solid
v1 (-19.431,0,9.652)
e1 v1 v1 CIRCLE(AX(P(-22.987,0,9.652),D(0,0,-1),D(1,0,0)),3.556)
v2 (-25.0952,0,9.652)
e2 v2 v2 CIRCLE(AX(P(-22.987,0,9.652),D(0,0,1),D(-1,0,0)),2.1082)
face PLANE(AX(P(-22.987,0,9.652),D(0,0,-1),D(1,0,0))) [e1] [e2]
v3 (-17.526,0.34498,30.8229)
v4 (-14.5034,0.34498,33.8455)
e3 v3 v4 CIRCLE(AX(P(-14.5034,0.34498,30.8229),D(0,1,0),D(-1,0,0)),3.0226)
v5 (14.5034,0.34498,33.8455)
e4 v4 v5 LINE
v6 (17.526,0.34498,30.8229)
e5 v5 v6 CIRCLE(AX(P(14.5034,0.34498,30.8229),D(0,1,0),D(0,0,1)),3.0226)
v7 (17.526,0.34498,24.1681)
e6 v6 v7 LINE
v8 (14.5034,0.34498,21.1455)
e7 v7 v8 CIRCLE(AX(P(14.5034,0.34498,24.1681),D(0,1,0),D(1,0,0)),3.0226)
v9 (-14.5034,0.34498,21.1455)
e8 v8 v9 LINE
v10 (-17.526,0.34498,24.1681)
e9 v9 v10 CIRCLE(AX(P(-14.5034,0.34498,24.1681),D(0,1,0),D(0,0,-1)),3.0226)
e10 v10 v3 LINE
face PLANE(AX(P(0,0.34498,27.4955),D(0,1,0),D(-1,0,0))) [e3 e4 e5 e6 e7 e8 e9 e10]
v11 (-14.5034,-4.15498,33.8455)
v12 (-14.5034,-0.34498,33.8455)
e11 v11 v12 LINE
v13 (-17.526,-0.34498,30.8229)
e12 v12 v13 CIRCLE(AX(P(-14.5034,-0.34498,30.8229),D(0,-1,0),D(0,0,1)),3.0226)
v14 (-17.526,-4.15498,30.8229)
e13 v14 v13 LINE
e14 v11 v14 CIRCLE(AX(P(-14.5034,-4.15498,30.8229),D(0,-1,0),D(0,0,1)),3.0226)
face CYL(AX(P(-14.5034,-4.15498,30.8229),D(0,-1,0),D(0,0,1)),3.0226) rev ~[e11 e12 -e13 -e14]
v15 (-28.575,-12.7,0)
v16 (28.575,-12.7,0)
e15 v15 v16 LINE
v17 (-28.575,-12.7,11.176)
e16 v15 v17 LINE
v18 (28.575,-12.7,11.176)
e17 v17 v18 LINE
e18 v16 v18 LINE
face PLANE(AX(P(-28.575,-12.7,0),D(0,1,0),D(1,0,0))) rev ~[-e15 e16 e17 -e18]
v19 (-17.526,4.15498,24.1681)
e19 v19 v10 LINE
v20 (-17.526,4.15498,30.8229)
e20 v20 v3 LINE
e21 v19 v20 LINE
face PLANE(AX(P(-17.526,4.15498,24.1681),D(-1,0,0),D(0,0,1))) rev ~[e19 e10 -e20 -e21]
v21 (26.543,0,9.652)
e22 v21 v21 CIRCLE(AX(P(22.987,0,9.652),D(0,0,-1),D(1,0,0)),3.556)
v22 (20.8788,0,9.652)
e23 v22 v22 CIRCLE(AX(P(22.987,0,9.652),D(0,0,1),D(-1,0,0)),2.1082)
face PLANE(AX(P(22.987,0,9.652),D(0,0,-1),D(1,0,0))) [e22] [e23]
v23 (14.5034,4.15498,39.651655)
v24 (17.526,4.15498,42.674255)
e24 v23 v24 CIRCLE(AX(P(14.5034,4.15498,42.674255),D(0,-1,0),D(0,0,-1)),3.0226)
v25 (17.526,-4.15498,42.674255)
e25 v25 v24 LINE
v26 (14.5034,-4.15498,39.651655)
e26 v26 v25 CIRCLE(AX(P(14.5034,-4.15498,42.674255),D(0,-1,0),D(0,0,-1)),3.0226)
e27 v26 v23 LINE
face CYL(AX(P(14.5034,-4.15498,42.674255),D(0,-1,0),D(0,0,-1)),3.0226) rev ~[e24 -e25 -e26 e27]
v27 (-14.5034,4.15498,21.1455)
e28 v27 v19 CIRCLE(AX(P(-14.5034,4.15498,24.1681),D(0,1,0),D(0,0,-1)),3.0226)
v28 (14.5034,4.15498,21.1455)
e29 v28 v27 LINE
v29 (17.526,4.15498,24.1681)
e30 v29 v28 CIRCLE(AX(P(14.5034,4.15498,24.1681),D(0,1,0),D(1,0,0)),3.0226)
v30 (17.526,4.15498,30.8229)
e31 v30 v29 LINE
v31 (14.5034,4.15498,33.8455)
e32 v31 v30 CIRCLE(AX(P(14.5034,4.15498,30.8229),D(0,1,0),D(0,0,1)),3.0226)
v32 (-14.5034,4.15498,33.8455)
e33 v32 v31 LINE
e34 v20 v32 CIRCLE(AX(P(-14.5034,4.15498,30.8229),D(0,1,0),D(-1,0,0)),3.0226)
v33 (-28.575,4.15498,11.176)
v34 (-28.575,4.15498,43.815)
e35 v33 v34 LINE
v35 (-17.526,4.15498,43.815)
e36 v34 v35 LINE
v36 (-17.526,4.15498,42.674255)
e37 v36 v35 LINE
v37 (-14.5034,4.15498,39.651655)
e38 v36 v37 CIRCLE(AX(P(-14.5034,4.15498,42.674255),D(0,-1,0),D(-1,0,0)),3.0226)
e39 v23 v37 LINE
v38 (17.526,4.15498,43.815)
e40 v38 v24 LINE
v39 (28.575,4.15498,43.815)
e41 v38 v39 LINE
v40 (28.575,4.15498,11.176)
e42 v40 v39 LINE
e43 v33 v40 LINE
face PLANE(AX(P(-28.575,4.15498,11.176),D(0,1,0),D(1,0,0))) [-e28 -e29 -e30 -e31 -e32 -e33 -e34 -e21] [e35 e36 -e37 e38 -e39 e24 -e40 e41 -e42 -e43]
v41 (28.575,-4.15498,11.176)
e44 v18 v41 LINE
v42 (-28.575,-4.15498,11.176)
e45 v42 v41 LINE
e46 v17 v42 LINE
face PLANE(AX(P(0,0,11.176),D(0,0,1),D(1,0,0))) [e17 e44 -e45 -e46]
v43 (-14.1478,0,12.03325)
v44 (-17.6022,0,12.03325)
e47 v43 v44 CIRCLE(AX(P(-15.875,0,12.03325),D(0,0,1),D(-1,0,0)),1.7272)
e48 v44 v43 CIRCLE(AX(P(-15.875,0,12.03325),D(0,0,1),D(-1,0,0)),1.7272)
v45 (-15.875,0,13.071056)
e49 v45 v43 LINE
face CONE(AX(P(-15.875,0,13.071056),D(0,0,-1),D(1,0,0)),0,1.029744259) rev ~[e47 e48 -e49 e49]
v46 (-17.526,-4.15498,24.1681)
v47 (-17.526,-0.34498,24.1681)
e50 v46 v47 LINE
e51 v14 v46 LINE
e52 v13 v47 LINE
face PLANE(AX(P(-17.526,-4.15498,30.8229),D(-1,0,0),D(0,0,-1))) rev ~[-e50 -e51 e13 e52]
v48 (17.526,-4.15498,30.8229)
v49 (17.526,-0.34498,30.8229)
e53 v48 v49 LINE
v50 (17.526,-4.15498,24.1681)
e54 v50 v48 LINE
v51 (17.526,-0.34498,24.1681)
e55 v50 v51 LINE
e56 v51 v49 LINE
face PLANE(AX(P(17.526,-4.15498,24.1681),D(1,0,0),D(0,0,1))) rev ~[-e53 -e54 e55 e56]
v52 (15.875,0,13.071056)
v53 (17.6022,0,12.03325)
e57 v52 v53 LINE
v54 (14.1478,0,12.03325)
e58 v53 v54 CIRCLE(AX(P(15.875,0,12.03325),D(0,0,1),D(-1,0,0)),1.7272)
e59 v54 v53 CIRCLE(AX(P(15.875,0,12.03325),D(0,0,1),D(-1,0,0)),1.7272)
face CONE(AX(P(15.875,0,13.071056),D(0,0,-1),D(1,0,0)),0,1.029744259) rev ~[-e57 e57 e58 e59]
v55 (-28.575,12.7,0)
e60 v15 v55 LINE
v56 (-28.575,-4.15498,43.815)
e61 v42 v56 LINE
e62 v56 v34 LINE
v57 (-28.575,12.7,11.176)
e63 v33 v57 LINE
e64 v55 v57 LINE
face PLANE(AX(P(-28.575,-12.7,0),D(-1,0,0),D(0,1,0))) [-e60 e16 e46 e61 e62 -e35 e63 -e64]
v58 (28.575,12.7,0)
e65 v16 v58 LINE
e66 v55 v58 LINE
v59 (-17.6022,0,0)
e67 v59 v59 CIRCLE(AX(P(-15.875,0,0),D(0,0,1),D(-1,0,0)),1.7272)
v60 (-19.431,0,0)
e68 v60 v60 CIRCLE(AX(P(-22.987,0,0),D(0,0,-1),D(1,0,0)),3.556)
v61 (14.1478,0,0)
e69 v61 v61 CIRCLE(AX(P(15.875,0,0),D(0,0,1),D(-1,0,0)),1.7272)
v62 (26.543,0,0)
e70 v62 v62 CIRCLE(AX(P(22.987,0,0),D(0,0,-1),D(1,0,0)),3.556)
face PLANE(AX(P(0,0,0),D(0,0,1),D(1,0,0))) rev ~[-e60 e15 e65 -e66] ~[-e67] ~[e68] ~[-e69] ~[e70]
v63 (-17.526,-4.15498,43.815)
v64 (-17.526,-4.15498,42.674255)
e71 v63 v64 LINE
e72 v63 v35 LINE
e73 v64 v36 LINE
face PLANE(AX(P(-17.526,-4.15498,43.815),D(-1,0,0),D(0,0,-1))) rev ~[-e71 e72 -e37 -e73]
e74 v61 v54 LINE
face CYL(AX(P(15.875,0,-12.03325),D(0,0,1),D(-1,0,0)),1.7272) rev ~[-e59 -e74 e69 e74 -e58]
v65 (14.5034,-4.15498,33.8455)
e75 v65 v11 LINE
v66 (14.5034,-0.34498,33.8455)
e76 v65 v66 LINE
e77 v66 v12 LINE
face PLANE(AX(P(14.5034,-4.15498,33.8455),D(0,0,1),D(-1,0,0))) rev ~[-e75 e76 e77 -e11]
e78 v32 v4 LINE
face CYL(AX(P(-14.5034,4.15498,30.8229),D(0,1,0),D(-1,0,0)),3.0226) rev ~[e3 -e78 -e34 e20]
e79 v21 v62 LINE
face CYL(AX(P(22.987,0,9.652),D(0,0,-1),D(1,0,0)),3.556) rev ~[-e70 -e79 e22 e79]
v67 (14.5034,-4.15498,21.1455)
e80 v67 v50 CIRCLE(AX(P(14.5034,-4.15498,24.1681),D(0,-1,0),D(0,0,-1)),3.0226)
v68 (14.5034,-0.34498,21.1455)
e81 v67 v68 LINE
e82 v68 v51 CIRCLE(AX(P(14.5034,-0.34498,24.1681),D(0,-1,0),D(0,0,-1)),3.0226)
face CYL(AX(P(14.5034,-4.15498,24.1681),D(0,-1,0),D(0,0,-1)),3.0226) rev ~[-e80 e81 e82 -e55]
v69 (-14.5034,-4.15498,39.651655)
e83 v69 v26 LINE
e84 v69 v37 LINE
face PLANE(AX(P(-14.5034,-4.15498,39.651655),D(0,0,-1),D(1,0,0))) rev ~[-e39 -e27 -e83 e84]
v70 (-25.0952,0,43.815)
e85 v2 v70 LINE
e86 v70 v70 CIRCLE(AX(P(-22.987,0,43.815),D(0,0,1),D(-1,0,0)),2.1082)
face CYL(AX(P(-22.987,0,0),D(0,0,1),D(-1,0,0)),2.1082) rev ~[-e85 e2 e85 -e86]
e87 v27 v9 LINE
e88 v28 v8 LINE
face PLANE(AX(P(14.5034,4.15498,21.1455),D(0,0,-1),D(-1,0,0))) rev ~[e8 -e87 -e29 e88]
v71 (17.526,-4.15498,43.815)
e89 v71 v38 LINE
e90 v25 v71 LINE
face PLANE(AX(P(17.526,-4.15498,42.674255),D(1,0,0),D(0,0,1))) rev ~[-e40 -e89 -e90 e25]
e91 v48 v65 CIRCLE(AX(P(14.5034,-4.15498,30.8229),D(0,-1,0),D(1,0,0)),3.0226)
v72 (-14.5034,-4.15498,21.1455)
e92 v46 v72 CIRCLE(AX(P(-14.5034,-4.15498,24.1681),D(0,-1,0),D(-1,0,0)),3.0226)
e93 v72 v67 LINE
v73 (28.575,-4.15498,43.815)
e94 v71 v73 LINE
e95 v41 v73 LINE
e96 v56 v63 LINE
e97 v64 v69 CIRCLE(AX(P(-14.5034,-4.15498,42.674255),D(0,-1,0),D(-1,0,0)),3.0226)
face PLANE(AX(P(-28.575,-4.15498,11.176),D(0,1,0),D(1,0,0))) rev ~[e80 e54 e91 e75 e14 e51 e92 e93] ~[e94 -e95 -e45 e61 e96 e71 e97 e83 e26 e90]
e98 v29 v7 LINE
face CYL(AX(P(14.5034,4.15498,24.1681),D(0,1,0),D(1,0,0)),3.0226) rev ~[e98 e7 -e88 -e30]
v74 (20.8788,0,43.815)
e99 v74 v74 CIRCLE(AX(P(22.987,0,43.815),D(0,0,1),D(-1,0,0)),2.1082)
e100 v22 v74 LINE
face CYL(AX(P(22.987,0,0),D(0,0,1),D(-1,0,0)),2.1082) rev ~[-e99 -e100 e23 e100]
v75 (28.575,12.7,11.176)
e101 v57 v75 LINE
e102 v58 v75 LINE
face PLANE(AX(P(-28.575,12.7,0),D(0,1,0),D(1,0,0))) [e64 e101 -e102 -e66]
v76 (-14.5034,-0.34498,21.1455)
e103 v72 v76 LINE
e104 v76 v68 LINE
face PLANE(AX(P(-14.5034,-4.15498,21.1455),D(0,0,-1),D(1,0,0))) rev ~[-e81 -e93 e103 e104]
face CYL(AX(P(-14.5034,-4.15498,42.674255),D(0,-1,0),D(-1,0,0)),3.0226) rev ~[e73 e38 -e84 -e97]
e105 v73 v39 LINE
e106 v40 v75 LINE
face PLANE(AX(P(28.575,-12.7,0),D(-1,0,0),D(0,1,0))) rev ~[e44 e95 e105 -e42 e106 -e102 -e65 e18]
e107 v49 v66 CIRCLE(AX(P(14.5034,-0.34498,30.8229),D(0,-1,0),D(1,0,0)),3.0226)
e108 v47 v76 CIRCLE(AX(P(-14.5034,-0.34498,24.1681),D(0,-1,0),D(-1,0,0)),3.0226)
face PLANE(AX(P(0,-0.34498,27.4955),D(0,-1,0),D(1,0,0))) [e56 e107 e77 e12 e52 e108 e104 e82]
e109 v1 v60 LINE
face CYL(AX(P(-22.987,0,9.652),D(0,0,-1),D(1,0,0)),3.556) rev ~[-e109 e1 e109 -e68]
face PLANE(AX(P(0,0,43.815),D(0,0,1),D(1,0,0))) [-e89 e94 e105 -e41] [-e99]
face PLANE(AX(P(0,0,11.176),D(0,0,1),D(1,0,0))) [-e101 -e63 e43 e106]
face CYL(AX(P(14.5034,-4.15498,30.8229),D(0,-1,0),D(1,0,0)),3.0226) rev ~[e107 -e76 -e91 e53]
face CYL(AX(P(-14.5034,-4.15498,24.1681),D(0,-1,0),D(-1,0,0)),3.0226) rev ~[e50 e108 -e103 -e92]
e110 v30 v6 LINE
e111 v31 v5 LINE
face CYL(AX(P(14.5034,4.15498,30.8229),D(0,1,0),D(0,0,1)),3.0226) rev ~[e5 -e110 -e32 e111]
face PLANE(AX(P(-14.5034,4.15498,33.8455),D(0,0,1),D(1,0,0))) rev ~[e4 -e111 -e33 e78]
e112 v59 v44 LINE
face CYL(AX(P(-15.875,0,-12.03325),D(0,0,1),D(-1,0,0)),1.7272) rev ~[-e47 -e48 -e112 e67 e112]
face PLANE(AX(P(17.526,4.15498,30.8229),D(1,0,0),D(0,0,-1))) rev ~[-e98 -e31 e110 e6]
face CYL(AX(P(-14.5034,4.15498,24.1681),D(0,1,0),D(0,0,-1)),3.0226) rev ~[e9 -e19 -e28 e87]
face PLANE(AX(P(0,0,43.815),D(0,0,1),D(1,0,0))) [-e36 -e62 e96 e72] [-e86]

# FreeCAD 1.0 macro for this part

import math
import FreeCAD as App
import Part
import Sketcher

V = App.Vector
Q = App.Units.Quantity

doc = App.newDocument("Part")
body = doc.addObject("PartDesign::Body", "Body")

sketch1 = body.newObject("Sketcher::SketchObject", "Sketch")
sketch1.AttachmentSupport = (doc.getObject("XY_Plane"), [""])
sketch1.MapMode = "FlatFace"
sketch1.addGeometry([
    Part.LineSegment(V(-29, 13, 0), V(-29, -13, 0)),
    Part.LineSegment(V(-29, -13, 0), V(29, -13, 0)),
    Part.LineSegment(V(29, -13, 0), V(29, 13, 0)),
    Part.LineSegment(V(29, 13, 0), V(-29, 13, 0)),
], False)
sketch1.addConstraint([
    Sketcher.Constraint("Coincident", 0, 2, 1, 1),
    Sketcher.Constraint("Coincident", 1, 2, 2, 1),
    Sketcher.Constraint("Coincident", 2, 2, 3, 1),
    Sketcher.Constraint("Coincident", 3, 2, 0, 1),
    Sketcher.Constraint("Vertical", 0),
    Sketcher.Constraint("Horizontal", 1),
    Sketcher.Constraint("Vertical", 2),
    Sketcher.Constraint("Horizontal", 3),
    Sketcher.Constraint("Symmetric", 0, 2, 2, 2, -1, 1),
    Sketcher.Constraint("DistanceY", 0, 2, 0, 1, Q("1 in")),
    Sketcher.Constraint("DistanceX", 1, 1, 1, 2, Q("2.25 in")),
])
pad1 = body.newObject("PartDesign::Pad", "Pad")
pad1.Profile = sketch1
pad1.Length = Q("0.44 in")

sketch2 = body.newObject("Sketcher::SketchObject", "Sketch001")
sketch2.AttachmentSupport = (doc.getObject("XY_Plane"), [""])
sketch2.MapMode = "FlatFace"
sketch2.AttachmentOffset = App.Placement(V(0, 0, 0.44 * 25.4), App.Rotation())
sketch2.addGeometry([
    Part.LineSegment(V(-29, 4, 0), V(-29, -4, 0)),
    Part.LineSegment(V(-29, -4, 0), V(29, -4, 0)),
    Part.LineSegment(V(29, -4, 0), V(29, 4, 0)),
    Part.LineSegment(V(29, 4, 0), V(-29, 4, 0)),
], False)
sketch2.addConstraint([
    Sketcher.Constraint("Coincident", 0, 2, 1, 1),
    Sketcher.Constraint("Coincident", 1, 2, 2, 1),
    Sketcher.Constraint("Coincident", 2, 2, 3, 1),
    Sketcher.Constraint("Coincident", 3, 2, 0, 1),
    Sketcher.Constraint("Vertical", 0),
    Sketcher.Constraint("Horizontal", 1),
    Sketcher.Constraint("Vertical", 2),
    Sketcher.Constraint("Horizontal", 3),
    Sketcher.Constraint("Symmetric", 0, 2, 2, 2, -1, 1),
    Sketcher.Constraint("DistanceX", 1, 1, 1, 2, Q("2.25 in")),
    Sketcher.Constraint("DistanceY", 0, 2, 0, 1, Q("8.30996 mm")),
])
pad2 = body.newObject("PartDesign::Pad", "Pad001")
pad2.Profile = sketch2
pad2.Length = Q("1.285 in")

sketch3 = body.newObject("Sketcher::SketchObject", "Sketch002")
sketch3.AttachmentSupport = (doc.getObject("XZ_Plane"), [""])
sketch3.MapMode = "FlatFace"
sketch3.AttachmentOffset = App.Placement(V(0, 0, 4.15498), App.Rotation())
sketch3.addGeometry([
    Part.ArcOfCircle(Part.Circle(V(14.5, 30.8, 0), V(0, 0, 1), 3), math.radians(0), math.radians(90)),
    Part.LineSegment(V(14.5, 33.8, 0), V(-14.5, 33.8, 0)),
    Part.ArcOfCircle(Part.Circle(V(-14.5, 30.8, 0), V(0, 0, 1), 3), math.radians(90), math.radians(180)),
    Part.LineSegment(V(-17.5, 30.8, 0), V(-17.5, 24.2, 0)),
    Part.ArcOfCircle(Part.Circle(V(-14.5, 24.2, 0), V(0, 0, 1), 3), math.radians(180), math.radians(270)),
    Part.LineSegment(V(-14.5, 21.1, 0), V(14.5, 21.1, 0)),
    Part.ArcOfCircle(Part.Circle(V(14.5, 24.2, 0), V(0, 0, 1), 3), math.radians(-90), math.radians(0)),
    Part.LineSegment(V(17.5, 24.2, 0), V(17.5, 30.8, 0)),
], False)
sketch3.addConstraint([
    Sketcher.Constraint("Tangent", 0, 2, 1, 1),
    Sketcher.Constraint("Tangent", 1, 2, 2, 1),
    Sketcher.Constraint("Tangent", 2, 2, 3, 1),
    Sketcher.Constraint("Tangent", 3, 2, 4, 1),
    Sketcher.Constraint("Tangent", 4, 2, 5, 1),
    Sketcher.Constraint("Tangent", 5, 2, 6, 1),
    Sketcher.Constraint("Tangent", 6, 2, 7, 1),
    Sketcher.Constraint("Tangent", 7, 2, 0, 1),
    Sketcher.Constraint("Horizontal", 1),
    Sketcher.Constraint("Vertical", 3),
    Sketcher.Constraint("Horizontal", 5),
    Sketcher.Constraint("Vertical", 7),
    Sketcher.Constraint("Equal", 0, 2),
    Sketcher.Constraint("Equal", 2, 4),
    Sketcher.Constraint("Equal", 4, 6),
    Sketcher.Constraint("Radius", 0, Q("0.119 in")),
    Sketcher.Constraint("DistanceY", 4, 2, 1, 2, Q("0.5 in")),
    Sketcher.Constraint("DistanceX", 1, 2, 1, 1, Q("1.142 in")),
    Sketcher.Constraint("DistanceX", 2, 2, -1, 1, Q("0.69 in")),
    Sketcher.Constraint("DistanceY", -1, 1, 0, 3, Q("1.2135 in")),
])
pocket1 = body.newObject("PartDesign::Pocket", "Pocket")
pocket1.Profile = sketch3
pocket1.Length = Q("0.15 in")

sketch4 = body.newObject("Sketcher::SketchObject", "Sketch003")
sketch4.AttachmentSupport = (doc.getObject("XZ_Plane"), [""])
sketch4.MapMode = "FlatFace"
sketch4.AttachmentOffset = App.Placement(V(0, 0, 4.15498), App.Rotation())
sketch4.addGeometry([
    Part.ArcOfCircle(Part.Circle(V(-14.5, 42.7, 0), V(0, 0, 1), 3), math.radians(180), math.radians(270)),
    Part.LineSegment(V(-14.5, 39.7, 0), V(14.5, 39.7, 0)),
    Part.ArcOfCircle(Part.Circle(V(14.5, 42.7, 0), V(0, 0, 1), 3), math.radians(-90), math.radians(0)),
    Part.LineSegment(V(17.5, 42.7, 0), V(17.5, 43.8, 0)),
    Part.LineSegment(V(17.5, 43.8, 0), V(-17.5, 43.8, 0)),
    Part.LineSegment(V(-17.5, 43.8, 0), V(-17.5, 42.7, 0)),
], False)
sketch4.addConstraint([
    Sketcher.Constraint("Tangent", 0, 2, 1, 1),
    Sketcher.Constraint("Tangent", 1, 2, 2, 1),
    Sketcher.Constraint("Tangent", 2, 2, 3, 1),
    Sketcher.Constraint("Coincident", 3, 2, 4, 1),
    Sketcher.Constraint("Coincident", 4, 2, 5, 1),
    Sketcher.Constraint("Tangent", 5, 2, 0, 1),
    Sketcher.Constraint("Horizontal", 1),
    Sketcher.Constraint("Vertical", 3),
    Sketcher.Constraint("Horizontal", 4),
    Sketcher.Constraint("Vertical", 5),
    Sketcher.Constraint("Equal", 0, 2),
    Sketcher.Constraint("Radius", 0, Q("0.119 in")),
    Sketcher.Constraint("DistanceX", 4, 2, 4, 1, Q("1.38 in")),
    Sketcher.Constraint("DistanceX", -1, 1, 2, 2, Q("0.69 in")),
    Sketcher.Constraint("DistanceY", -1, 1, 3, 2, Q("1.725 in")),
    Sketcher.Constraint("DistanceY", 3, 1, 3, 2, Q("1.140745 mm")),
])
pocket2 = body.newObject("PartDesign::Pocket", "Pocket001")
pocket2.Profile = sketch4
pocket2.Type = "ThroughAll"

sketch5 = body.newObject("Sketcher::SketchObject", "Sketch004")
sketch5.AttachmentSupport = (doc.getObject("XZ_Plane"), [""])
sketch5.MapMode = "FlatFace"
sketch5.AttachmentOffset = App.Placement(V(0, 0, -4.15498), App.Rotation())
sketch5.addGeometry([
    Part.ArcOfCircle(Part.Circle(V(14.5, 30.8, 0), V(0, 0, 1), 3), math.radians(0), math.radians(90)),
    Part.LineSegment(V(17.5, 30.8, 0), V(17.5, 24.2, 0)),
    Part.ArcOfCircle(Part.Circle(V(14.5, 24.2, 0), V(0, 0, 1), 3), math.radians(-90), math.radians(0)),
    Part.LineSegment(V(14.5, 21.1, 0), V(-14.5, 21.1, 0)),
    Part.ArcOfCircle(Part.Circle(V(-14.5, 24.2, 0), V(0, 0, 1), 3), math.radians(180), math.radians(270)),
    Part.LineSegment(V(-17.5, 24.2, 0), V(-17.5, 30.8, 0)),
    Part.ArcOfCircle(Part.Circle(V(-14.5, 30.8, 0), V(0, 0, 1), 3), math.radians(90), math.radians(180)),
    Part.LineSegment(V(-14.5, 33.8, 0), V(14.5, 33.8, 0)),
], False)
sketch5.addConstraint([
    Sketcher.Constraint("Tangent", 0, 1, 1, 1),
    Sketcher.Constraint("Tangent", 1, 2, 2, 2),
    Sketcher.Constraint("Tangent", 2, 1, 3, 1),
    Sketcher.Constraint("Tangent", 3, 2, 4, 2),
    Sketcher.Constraint("Tangent", 4, 1, 5, 1),
    Sketcher.Constraint("Tangent", 5, 2, 6, 2),
    Sketcher.Constraint("Tangent", 6, 1, 7, 1),
    Sketcher.Constraint("Tangent", 7, 2, 0, 2),
    Sketcher.Constraint("Vertical", 1),
    Sketcher.Constraint("Horizontal", 3),
    Sketcher.Constraint("Vertical", 5),
    Sketcher.Constraint("Horizontal", 7),
    Sketcher.Constraint("Equal", 0, 2),
    Sketcher.Constraint("Equal", 2, 4),
    Sketcher.Constraint("Equal", 4, 6),
    Sketcher.Constraint("Radius", 0, Q("0.119 in")),
    Sketcher.Constraint("DistanceY", 3, 2, 6, 1, Q("0.5 in")),
    Sketcher.Constraint("DistanceX", 3, 2, 3, 1, Q("1.142 in")),
    Sketcher.Constraint("DistanceX", -1, 1, 0, 1, Q("0.69 in")),
    Sketcher.Constraint("DistanceY", -1, 1, 0, 3, Q("1.2135 in")),
])
pocket3 = body.newObject("PartDesign::Pocket", "Pocket002")
pocket3.Profile = sketch5
pocket3.Length = Q("0.15 in")
pocket3.Reversed = True

sketch6 = body.newObject("Sketcher::SketchObject", "Sketch005")
sketch6.AttachmentSupport = (doc.getObject("XY_Plane"), [""])
sketch6.MapMode = "FlatFace"
sketch6.addGeometry([
    Part.Circle(V(-23, 0, 0), V(0, 0, 1), 2.1),
    Part.Circle(V(23, 0, 0), V(0, 0, 1), 2.1),
], False)
sketch6.addConstraint([
    Sketcher.Constraint("Equal", 0, 1),
    Sketcher.Constraint("Symmetric", 0, 3, 1, 3, -1, 1),
    Sketcher.Constraint("PointOnObject", 0, 3, -1),
    Sketcher.Constraint("Diameter", 0, Q("0.166 in")),
    Sketcher.Constraint("DistanceX", 0, 3, 1, 3, Q("1.81 in")),
])
doc.recompute()
hole = body.newObject("PartDesign::Hole", "Hole")
hole.Profile = sketch6
hole.ThreadType = "None"
hole.Diameter = Q("0.166 in")
hole.DepthType = "ThroughAll"
hole.HoleCutType = "Counterbore"
hole.HoleCutDiameter = Q("0.28 in")
hole.HoleCutDepth = Q("0.38 in")
hole.Reversed = True

sketch7 = body.newObject("Sketcher::SketchObject", "Sketch006")
sketch7.AttachmentSupport = (doc.getObject("XY_Plane"), [""])
sketch7.MapMode = "FlatFace"
sketch7.addGeometry([
    Part.Circle(V(-15.9, 0, 0), V(0, 0, 1), 1.7),
    Part.Circle(V(15.9, 0, 0), V(0, 0, 1), 1.7),
], False)
sketch7.addConstraint([
    Sketcher.Constraint("Equal", 0, 1),
    Sketcher.Constraint("Symmetric", 0, 3, 1, 3, -1, 1),
    Sketcher.Constraint("PointOnObject", 0, 3, -1),
    Sketcher.Constraint("Diameter", 0, Q("0.136 in")),
    Sketcher.Constraint("DistanceX", 0, 3, 1, 3, Q("1.25 in")),
])
doc.recompute()
hole2 = body.newObject("PartDesign::Hole", "Hole001")
hole2.Profile = sketch7
hole2.ThreadType = "None"
hole2.Diameter = Q("0.136 in")
hole2.DepthType = "Dimension"
hole2.Depth = 12.03325
hole2.DrillPoint = "Angled"
hole2.DrillPointAngle = 118
hole2.Reversed = True

doc.recompute()
